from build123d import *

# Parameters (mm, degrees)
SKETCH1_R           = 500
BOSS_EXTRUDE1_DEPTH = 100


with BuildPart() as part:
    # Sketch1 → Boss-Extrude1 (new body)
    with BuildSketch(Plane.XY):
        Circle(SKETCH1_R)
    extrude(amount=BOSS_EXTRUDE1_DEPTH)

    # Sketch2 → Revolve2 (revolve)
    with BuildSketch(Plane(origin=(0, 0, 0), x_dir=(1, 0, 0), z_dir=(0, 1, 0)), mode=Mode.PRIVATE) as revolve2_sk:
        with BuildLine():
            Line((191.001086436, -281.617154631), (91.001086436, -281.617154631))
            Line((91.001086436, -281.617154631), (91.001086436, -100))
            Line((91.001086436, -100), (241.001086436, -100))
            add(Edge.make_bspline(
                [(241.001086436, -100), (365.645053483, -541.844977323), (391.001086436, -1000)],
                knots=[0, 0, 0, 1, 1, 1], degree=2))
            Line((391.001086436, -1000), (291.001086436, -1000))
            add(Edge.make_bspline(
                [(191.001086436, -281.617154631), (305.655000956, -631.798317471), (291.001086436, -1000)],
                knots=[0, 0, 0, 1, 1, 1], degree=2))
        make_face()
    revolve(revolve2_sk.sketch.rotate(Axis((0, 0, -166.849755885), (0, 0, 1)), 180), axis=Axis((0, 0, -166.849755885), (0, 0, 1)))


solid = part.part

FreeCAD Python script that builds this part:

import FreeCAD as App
import Part
import Sketcher
from FreeCAD import Vector

doc = App.newDocument("Part")
body = doc.addObject("PartDesign::Body", "Body")

# Sketch on XY plane
sketch1 = doc.addObject("Sketcher::SketchObject", "Sketch")
body.addObject(sketch1)
sketch1.AttachmentSupport = (doc.XY_Plane, [""])
sketch1.MapMode = "FlatFace"
sketch1.addGeometry(Part.Circle(Vector(0, 0, 0), Vector(0, 0, 1), 500), False)
sketch1.addConstraint(Sketcher.Constraint("Coincident", 0, 3, -1, 1))
sketch1.addConstraint(Sketcher.Constraint("Diameter", 0, 1000.0))
pad1 = doc.addObject("PartDesign::Pad", "Pad")
body.addObject(pad1)
pad1.Profile = sketch1
pad1.Length = 100

# Sketch on XZ plane
sketch2 = doc.addObject("Sketcher::SketchObject", "Sketch001")
body.addObject(sketch2)
sketch2.AttachmentSupport = (doc.XZ_Plane, [""])
sketch2.MapMode = "FlatFace"
sketch2.addGeometry(Part.LineSegment(Vector(91.001086, 281.617155, 0), Vector(191.001086, 281.617155, 0)), False)
sketch2.addGeometry(Part.BSplineCurve([Vector(191.001086, 281.617155, 0), Vector(305.655001, 631.798317, 0), Vector(291.001086, 1000, 0)], [3, 3], [0, 1], False, 2, [1, 1, 1], False), False)
sketch2.addGeometry(Part.LineSegment(Vector(291.001086, 1000, 0), Vector(391.001086, 1000, 0)), False)
sketch2.addGeometry(Part.BSplineCurve([Vector(241.001086, 100, 0), Vector(365.645053, 541.844977, 0), Vector(391.001086, 1000, 0)], [3, 3], [0, 1], False, 2, [1, 1, 1], False), False)
sketch2.addGeometry(Part.LineSegment(Vector(241.001086, 100, 0), Vector(91.001086, 100, 0)), False)
sketch2.addGeometry(Part.LineSegment(Vector(91.001086, 100, 0), Vector(91.001086, 281.617155, 0)), False)
sketch2.addConstraint(Sketcher.Constraint("Block", 1))
sketch2.addConstraint(Sketcher.Constraint("Block", 3))
sketch2.addConstraint(Sketcher.Constraint("Coincident", 0, 2, 1, 1))
sketch2.addConstraint(Sketcher.Constraint("Coincident", 1, 2, 2, 1))
sketch2.addConstraint(Sketcher.Constraint("Coincident", 2, 2, 3, 2))
sketch2.addConstraint(Sketcher.Constraint("Coincident", 3, 1, 4, 1))
sketch2.addConstraint(Sketcher.Constraint("Coincident", 4, 2, 5, 1))
sketch2.addConstraint(Sketcher.Constraint("Coincident", 5, 2, 0, 1))
sketch2.addConstraint(Sketcher.Constraint("Horizontal", 0))
sketch2.addConstraint(Sketcher.Constraint("Horizontal", 4))
sketch2.addConstraint(Sketcher.Constraint("Vertical", 5))
sketch2.addConstraint(Sketcher.Constraint("Equal", 0, 2))
revolution = doc.addObject("PartDesign::Revolution", "Revolution")
body.addObject(revolution)
revolution.Profile = sketch2
revolution.ReferenceAxis = (sketch2, ["V_Axis"])
revolution.Angle = 360

doc.recompute()
